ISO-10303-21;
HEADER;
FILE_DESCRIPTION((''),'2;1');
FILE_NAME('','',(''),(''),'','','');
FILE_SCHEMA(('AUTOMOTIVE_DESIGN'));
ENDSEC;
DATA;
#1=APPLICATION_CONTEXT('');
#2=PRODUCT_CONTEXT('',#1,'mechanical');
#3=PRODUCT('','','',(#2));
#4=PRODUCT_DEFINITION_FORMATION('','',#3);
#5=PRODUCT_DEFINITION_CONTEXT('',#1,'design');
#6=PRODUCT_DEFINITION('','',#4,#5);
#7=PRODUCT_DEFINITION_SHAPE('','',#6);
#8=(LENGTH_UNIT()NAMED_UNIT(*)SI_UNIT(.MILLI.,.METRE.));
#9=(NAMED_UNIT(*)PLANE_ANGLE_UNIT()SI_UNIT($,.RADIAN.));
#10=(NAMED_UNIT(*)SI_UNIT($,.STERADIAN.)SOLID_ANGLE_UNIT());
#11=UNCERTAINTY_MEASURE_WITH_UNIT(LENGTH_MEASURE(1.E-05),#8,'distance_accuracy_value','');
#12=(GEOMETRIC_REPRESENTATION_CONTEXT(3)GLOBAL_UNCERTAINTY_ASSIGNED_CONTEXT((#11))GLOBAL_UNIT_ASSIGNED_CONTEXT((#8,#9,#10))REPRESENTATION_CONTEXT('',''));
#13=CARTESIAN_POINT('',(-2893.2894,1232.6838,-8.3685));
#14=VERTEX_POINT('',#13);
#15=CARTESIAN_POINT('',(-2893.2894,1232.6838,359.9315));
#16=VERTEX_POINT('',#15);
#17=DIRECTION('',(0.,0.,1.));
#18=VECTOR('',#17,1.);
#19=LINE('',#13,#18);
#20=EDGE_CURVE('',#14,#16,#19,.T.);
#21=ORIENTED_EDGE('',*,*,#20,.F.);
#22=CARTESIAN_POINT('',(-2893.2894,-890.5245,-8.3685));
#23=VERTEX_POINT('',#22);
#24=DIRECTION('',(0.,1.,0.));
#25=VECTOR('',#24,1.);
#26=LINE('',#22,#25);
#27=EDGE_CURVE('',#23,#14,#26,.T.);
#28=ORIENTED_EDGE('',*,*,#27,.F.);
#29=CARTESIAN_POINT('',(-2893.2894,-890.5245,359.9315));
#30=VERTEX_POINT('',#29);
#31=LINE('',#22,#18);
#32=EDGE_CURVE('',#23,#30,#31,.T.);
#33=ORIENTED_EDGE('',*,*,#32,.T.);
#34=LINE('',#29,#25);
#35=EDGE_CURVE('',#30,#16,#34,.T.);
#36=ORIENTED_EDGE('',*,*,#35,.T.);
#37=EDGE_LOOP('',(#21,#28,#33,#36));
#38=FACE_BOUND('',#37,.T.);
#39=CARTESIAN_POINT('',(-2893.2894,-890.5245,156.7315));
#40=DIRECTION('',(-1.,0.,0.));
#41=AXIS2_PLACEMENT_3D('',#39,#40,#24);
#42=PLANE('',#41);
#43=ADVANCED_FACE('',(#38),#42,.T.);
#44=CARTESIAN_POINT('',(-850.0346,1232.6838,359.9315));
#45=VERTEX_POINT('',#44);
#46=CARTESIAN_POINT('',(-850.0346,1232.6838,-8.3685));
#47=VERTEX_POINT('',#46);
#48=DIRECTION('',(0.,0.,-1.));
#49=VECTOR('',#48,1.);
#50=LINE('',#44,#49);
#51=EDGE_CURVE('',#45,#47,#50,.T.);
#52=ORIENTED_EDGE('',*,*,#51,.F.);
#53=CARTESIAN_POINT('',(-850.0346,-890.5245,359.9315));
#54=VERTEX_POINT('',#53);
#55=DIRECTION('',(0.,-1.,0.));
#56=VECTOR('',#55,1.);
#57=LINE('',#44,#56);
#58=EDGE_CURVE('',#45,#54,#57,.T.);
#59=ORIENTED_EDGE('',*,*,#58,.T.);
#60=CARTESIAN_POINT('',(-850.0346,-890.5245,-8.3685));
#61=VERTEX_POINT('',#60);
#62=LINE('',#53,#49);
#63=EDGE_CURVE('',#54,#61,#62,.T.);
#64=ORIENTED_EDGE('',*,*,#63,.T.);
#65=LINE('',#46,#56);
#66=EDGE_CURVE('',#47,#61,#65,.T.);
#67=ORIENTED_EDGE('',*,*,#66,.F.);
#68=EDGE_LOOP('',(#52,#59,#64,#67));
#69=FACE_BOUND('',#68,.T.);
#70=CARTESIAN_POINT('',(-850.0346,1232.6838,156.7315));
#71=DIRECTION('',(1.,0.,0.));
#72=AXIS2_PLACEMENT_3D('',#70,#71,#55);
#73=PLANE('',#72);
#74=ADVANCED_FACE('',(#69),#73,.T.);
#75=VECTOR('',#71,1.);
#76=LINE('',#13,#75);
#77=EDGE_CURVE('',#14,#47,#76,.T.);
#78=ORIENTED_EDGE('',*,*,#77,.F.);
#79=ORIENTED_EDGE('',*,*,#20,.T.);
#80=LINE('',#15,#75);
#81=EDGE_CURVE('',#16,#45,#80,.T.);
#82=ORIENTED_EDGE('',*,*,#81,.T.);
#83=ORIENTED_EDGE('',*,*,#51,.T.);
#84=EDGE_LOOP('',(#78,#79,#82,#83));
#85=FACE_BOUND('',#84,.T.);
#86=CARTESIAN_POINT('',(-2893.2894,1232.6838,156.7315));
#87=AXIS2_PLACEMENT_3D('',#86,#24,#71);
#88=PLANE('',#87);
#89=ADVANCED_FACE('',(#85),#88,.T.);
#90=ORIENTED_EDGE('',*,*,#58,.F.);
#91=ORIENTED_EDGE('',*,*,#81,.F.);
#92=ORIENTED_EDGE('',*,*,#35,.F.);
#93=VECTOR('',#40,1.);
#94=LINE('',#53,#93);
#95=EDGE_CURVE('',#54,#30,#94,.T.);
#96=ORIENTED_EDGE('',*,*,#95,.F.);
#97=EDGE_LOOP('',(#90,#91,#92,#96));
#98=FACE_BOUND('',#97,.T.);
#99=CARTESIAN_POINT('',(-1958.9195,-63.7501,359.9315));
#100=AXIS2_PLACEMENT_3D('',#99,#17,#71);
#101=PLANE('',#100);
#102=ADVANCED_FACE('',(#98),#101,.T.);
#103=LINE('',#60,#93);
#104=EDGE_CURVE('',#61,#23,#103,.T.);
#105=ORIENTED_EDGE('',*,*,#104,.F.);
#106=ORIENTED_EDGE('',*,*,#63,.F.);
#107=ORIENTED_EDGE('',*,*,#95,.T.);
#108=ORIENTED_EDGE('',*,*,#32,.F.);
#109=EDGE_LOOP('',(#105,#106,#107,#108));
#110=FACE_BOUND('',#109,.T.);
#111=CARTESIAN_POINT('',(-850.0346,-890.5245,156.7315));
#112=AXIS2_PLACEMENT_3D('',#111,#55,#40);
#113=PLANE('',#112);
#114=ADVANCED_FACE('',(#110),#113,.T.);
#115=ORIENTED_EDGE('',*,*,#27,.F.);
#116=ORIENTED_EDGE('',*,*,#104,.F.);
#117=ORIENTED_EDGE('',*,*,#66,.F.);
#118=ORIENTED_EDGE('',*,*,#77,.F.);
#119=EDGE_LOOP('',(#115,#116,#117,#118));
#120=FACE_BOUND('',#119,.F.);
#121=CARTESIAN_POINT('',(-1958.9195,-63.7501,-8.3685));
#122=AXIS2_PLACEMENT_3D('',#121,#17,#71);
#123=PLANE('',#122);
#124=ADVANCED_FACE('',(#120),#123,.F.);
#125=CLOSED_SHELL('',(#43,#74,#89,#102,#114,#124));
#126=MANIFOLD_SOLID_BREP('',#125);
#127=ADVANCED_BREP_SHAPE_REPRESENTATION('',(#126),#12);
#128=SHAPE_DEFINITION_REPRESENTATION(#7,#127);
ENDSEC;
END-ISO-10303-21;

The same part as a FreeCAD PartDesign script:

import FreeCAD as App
import Part
import Sketcher
from FreeCAD import Vector
Q = App.Units.Quantity

doc = App.newDocument("Part")
body = doc.addObject("PartDesign::Body", "Body")

# Sketch on XY plane
sketch1 = doc.addObject("Sketcher::SketchObject", "Sketch")
body.addObject(sketch1)
sketch1.AttachmentSupport = (doc.XY_Plane, [""])
sketch1.MapMode = "FlatFace"
sketch1.AttachmentOffset = App.Placement(Vector(0, 0, 156.7315), App.Rotation())
sketch1.addGeometry(Part.LineSegment(Vector(-850, 1233, 0), Vector(-2893, 1233, 0)), False)
sketch1.addGeometry(Part.LineSegment(Vector(-2893, 1233, 0), Vector(-2893, -891, 0)), False)
sketch1.addGeometry(Part.LineSegment(Vector(-2893, -891, 0), Vector(-850, -891, 0)), False)
sketch1.addGeometry(Part.LineSegment(Vector(-850, -891, 0), Vector(-850, 1233, 0)), False)
sketch1.addConstraint(Sketcher.Constraint("Coincident", 0, 2, 1, 1))
sketch1.addConstraint(Sketcher.Constraint("Coincident", 1, 2, 2, 1))
sketch1.addConstraint(Sketcher.Constraint("Coincident", 2, 2, 3, 1))
sketch1.addConstraint(Sketcher.Constraint("Coincident", 3, 2, 0, 1))
sketch1.addConstraint(Sketcher.Constraint("Horizontal", 0))
sketch1.addConstraint(Sketcher.Constraint("Vertical", 1))
sketch1.addConstraint(Sketcher.Constraint("Horizontal", 2))
sketch1.addConstraint(Sketcher.Constraint("Vertical", 3))
sketch1.addConstraint(Sketcher.Constraint("DistanceX", 0, 2, 0, 1, Q("80.4431 in")))
sketch1.addConstraint(Sketcher.Constraint("DistanceY", 1, 2, 1, 1, 2123.2083))
sketch1.addConstraint(Sketcher.Constraint("DistanceX", 0, 2, -1, 1, 2893.2894))
sketch1.addConstraint(Sketcher.Constraint("DistanceY", -1, 1, 0, 2, 1232.6838))
pad1 = doc.addObject("PartDesign::Pad", "Pad")
body.addObject(pad1)
pad1.Profile = sketch1
pad1.Type = "TwoLengths"
pad1.Length = Q("8 in")
pad1.Length2 = Q("6.5 in")

doc.recompute()
